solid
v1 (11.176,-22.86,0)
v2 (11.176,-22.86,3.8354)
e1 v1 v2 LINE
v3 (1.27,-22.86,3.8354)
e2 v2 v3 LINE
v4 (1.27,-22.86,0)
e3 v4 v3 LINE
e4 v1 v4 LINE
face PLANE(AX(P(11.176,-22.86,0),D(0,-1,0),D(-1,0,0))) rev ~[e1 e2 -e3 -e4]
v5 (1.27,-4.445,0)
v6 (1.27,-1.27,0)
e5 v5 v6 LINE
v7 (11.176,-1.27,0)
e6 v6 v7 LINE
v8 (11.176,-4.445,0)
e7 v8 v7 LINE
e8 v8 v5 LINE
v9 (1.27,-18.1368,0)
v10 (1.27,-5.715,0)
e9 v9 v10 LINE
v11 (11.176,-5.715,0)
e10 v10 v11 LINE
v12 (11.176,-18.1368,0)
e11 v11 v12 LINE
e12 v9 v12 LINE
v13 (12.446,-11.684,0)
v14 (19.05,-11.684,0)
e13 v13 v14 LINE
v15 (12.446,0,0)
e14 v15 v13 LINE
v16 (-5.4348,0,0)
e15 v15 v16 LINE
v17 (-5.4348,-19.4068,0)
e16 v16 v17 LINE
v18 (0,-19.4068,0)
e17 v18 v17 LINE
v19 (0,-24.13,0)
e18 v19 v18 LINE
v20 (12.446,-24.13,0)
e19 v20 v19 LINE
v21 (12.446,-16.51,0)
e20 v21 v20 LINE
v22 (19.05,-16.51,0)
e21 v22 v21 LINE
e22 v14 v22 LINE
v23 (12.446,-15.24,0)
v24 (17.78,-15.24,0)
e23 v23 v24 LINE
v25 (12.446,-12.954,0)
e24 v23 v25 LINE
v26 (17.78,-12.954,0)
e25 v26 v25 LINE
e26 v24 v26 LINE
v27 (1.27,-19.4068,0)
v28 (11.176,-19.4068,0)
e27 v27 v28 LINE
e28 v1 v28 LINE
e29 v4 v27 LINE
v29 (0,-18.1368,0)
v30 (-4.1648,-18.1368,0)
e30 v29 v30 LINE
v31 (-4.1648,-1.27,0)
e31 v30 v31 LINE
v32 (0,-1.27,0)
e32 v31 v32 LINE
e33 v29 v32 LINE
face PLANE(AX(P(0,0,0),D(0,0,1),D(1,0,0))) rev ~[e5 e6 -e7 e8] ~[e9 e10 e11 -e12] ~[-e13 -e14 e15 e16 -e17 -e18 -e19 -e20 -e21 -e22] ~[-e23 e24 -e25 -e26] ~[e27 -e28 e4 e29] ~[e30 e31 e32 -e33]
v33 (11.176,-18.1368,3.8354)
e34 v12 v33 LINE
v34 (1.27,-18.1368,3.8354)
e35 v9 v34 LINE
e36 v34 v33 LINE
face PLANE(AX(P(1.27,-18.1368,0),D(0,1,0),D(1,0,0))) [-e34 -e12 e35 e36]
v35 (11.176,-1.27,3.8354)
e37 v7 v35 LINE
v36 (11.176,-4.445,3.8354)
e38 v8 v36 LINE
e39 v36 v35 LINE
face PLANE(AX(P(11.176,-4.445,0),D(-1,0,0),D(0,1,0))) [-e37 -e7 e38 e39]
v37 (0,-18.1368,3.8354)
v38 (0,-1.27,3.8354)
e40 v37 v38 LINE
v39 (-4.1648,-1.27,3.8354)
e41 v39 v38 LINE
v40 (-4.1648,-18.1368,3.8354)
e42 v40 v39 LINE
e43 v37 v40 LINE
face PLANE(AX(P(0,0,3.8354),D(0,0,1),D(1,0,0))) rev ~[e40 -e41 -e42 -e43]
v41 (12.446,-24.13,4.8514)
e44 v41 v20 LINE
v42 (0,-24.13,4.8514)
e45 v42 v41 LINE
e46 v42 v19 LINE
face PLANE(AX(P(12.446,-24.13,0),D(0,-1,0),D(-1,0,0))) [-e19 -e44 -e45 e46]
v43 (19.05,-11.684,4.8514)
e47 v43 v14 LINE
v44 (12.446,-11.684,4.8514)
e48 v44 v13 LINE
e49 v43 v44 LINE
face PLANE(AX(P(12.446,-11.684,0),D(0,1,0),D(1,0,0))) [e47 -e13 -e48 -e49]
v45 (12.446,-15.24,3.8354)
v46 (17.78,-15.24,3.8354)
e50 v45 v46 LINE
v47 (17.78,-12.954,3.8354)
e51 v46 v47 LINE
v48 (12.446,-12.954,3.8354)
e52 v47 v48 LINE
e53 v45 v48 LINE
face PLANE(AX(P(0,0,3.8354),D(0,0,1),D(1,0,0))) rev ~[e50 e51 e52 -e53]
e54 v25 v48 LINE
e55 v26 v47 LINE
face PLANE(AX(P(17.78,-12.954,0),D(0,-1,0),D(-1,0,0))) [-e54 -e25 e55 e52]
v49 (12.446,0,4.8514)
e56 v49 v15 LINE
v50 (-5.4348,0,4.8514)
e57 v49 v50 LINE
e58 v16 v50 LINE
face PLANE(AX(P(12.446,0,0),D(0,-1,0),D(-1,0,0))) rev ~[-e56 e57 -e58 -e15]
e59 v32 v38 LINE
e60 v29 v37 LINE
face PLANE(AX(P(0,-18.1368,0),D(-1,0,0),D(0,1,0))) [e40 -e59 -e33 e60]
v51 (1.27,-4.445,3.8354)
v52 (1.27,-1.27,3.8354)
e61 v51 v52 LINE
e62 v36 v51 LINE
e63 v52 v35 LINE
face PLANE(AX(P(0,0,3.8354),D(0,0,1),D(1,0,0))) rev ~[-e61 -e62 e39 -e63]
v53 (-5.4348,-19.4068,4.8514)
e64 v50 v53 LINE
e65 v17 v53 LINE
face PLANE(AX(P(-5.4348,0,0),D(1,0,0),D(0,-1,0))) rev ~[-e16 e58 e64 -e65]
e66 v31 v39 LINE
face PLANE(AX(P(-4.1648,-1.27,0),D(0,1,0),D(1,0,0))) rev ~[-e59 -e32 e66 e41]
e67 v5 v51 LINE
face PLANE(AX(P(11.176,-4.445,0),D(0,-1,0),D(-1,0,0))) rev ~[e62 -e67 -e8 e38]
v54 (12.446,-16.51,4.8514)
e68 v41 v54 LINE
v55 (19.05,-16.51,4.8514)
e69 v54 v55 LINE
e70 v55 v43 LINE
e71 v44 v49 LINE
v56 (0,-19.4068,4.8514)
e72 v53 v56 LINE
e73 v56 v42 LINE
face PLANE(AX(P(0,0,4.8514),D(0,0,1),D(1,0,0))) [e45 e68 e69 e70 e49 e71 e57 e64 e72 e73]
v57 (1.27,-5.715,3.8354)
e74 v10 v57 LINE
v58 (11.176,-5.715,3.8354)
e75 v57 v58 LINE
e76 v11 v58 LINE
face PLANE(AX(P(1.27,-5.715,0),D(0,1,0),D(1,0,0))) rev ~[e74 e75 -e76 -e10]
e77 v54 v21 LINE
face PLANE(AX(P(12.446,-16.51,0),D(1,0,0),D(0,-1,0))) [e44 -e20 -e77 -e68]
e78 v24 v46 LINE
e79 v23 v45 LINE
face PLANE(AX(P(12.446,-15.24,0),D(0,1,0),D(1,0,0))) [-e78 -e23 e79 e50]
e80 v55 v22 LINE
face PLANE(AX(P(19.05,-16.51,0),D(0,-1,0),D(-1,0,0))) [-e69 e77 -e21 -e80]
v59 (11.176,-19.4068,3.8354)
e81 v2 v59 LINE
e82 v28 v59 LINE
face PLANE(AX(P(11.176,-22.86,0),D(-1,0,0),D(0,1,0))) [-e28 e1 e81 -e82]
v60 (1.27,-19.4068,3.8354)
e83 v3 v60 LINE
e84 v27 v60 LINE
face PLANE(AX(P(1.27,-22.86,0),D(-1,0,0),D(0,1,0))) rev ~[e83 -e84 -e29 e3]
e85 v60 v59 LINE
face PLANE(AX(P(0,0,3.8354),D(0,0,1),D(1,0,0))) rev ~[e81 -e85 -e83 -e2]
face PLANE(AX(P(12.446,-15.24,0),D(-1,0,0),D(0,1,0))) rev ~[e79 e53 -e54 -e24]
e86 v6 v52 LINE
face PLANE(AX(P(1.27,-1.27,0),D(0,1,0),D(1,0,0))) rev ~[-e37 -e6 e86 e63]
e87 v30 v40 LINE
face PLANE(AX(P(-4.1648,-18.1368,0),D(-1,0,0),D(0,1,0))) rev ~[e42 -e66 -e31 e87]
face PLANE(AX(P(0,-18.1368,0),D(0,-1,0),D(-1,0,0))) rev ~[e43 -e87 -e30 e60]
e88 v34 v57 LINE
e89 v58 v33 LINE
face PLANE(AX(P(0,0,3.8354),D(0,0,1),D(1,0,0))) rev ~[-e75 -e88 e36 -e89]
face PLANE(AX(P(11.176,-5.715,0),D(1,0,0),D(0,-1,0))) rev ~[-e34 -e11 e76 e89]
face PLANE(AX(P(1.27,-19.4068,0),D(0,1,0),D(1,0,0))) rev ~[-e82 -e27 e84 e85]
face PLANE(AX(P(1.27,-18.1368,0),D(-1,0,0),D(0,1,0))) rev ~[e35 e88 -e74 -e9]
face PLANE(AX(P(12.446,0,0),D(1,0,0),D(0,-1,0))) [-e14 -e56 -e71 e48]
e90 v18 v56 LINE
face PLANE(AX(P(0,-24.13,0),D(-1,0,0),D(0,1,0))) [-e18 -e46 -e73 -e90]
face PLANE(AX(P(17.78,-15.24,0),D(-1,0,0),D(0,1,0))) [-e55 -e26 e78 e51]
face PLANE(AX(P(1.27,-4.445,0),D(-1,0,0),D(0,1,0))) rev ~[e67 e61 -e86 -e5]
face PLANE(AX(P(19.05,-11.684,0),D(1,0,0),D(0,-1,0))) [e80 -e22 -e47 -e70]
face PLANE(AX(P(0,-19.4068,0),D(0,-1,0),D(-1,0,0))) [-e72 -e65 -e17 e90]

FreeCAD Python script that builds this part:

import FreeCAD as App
import Part
import Sketcher
from FreeCAD import Vector
Q = App.Units.Quantity

doc = App.newDocument("Part")
body = doc.addObject("PartDesign::Body", "Body")

sketch1 = doc.addObject("Sketcher::SketchObject", "Sketch")
body.addObject(sketch1)
sketch1.AttachmentSupport = (doc.XY_Plane, [""])
sketch1.MapMode = "FlatFace"
sketch1.addGeometry([
    Part.LineSegment(Vector(12.446, 0, 0), Vector(-5.4348, 0, 0)),
    Part.LineSegment(Vector(-5.4348, 0, 0), Vector(-5.4348, -19.4068, 0)),
    Part.LineSegment(Vector(-5.4348, -19.4068, 0), Vector(0, -19.4068, 0)),
    Part.LineSegment(Vector(0, -19.4068, 0), Vector(0, -24.13, 0)),
    Part.LineSegment(Vector(0, -24.13, 0), Vector(12.446, -24.13, 0)),
    Part.LineSegment(Vector(12.446, -24.13, 0), Vector(12.446, -16.51, 0)),
    Part.LineSegment(Vector(12.446, -16.51, 0), Vector(19.05, -16.51, 0)),
    Part.LineSegment(Vector(19.05, -16.51, 0), Vector(19.05, -11.684, 0)),
    Part.LineSegment(Vector(19.05, -11.684, 0), Vector(12.446, -11.684, 0)),
    Part.LineSegment(Vector(12.446, -11.684, 0), Vector(12.446, 0, 0)),
    Part.LineSegment(Vector(11.176, -19.4068, 0), Vector(11.176, -22.86, 0)),
    Part.LineSegment(Vector(11.176, -22.86, 0), Vector(1.27, -22.86, 0)),
    Part.LineSegment(Vector(1.27, -22.86, 0), Vector(1.27, -19.4068, 0)),
    Part.LineSegment(Vector(1.27, -19.4068, 0), Vector(11.176, -19.4068, 0)),
    Part.LineSegment(Vector(17.78, -15.24, 0), Vector(12.446, -15.24, 0)),
    Part.LineSegment(Vector(12.446, -15.24, 0), Vector(12.446, -12.954, 0)),
    Part.LineSegment(Vector(12.446, -12.954, 0), Vector(17.78, -12.954, 0)),
    Part.LineSegment(Vector(17.78, -12.954, 0), Vector(17.78, -15.24, 0)),
    Part.LineSegment(Vector(-4.1648, -18.1368, 0), Vector(-4.1648, -1.27, 0)),
    Part.LineSegment(Vector(-4.1648, -1.27, 0), Vector(0, -1.27, 0)),
    Part.LineSegment(Vector(0, -1.27, 0), Vector(0, -18.1368, 0)),
    Part.LineSegment(Vector(0, -18.1368, 0), Vector(-4.1648, -18.1368, 0)),
    Part.LineSegment(Vector(1.27, -18.1368, 0), Vector(1.27, -5.715, 0)),
    Part.LineSegment(Vector(1.27, -5.715, 0), Vector(11.176, -5.715, 0)),
    Part.LineSegment(Vector(11.176, -5.715, 0), Vector(11.176, -18.1368, 0)),
    Part.LineSegment(Vector(11.176, -18.1368, 0), Vector(1.27, -18.1368, 0)),
    Part.LineSegment(Vector(11.176, -1.27, 0), Vector(11.176, -4.445, 0)),
    Part.LineSegment(Vector(11.176, -4.445, 0), Vector(1.27, -4.445, 0)),
    Part.LineSegment(Vector(1.27, -4.445, 0), Vector(1.27, -1.27, 0)),
    Part.LineSegment(Vector(1.27, -1.27, 0), Vector(11.176, -1.27, 0)),
], False)
sketch1.addConstraint([
    Sketcher.Constraint("Coincident", 0, 2, 1, 1),
    Sketcher.Constraint("Coincident", 1, 2, 2, 1),
    Sketcher.Constraint("Coincident", 2, 2, 3, 1),
    Sketcher.Constraint("Coincident", 3, 2, 4, 1),
    Sketcher.Constraint("Coincident", 4, 2, 5, 1),
    Sketcher.Constraint("Coincident", 5, 2, 6, 1),
    Sketcher.Constraint("Coincident", 6, 2, 7, 1),
    Sketcher.Constraint("Coincident", 7, 2, 8, 1),
    Sketcher.Constraint("Coincident", 8, 2, 9, 1),
    Sketcher.Constraint("Coincident", 9, 2, 0, 1),
    Sketcher.Constraint("Coincident", 10, 2, 11, 1),
    Sketcher.Constraint("Coincident", 11, 2, 12, 1),
    Sketcher.Constraint("Coincident", 12, 2, 13, 1),
    Sketcher.Constraint("Coincident", 13, 2, 10, 1),
    Sketcher.Constraint("Coincident", 14, 2, 15, 1),
    Sketcher.Constraint("Coincident", 15, 2, 16, 1),
    Sketcher.Constraint("Coincident", 16, 2, 17, 1),
    Sketcher.Constraint("Coincident", 17, 2, 14, 1),
    Sketcher.Constraint("Coincident", 18, 2, 19, 1),
    Sketcher.Constraint("Coincident", 19, 2, 20, 1),
    Sketcher.Constraint("Coincident", 20, 2, 21, 1),
    Sketcher.Constraint("Coincident", 21, 2, 18, 1),
    Sketcher.Constraint("Coincident", 22, 2, 23, 1),
    Sketcher.Constraint("Coincident", 23, 2, 24, 1),
    Sketcher.Constraint("Coincident", 24, 2, 25, 1),
    Sketcher.Constraint("Coincident", 25, 2, 22, 1),
    Sketcher.Constraint("Coincident", 26, 2, 27, 1),
    Sketcher.Constraint("Coincident", 27, 2, 28, 1),
    Sketcher.Constraint("Coincident", 28, 2, 29, 1),
    Sketcher.Constraint("Coincident", 29, 2, 26, 1),
    Sketcher.Constraint("Horizontal", 0),
    Sketcher.Constraint("Vertical", 1),
    Sketcher.Constraint("Horizontal", 2),
    Sketcher.Constraint("Vertical", 3),
    Sketcher.Constraint("Horizontal", 4),
    Sketcher.Constraint("Vertical", 5),
    Sketcher.Constraint("Horizontal", 6),
    Sketcher.Constraint("Vertical", 7),
    Sketcher.Constraint("Horizontal", 8),
    Sketcher.Constraint("Vertical", 9),
    Sketcher.Constraint("Vertical", 10),
    Sketcher.Constraint("Horizontal", 11),
    Sketcher.Constraint("Vertical", 12),
    Sketcher.Constraint("Horizontal", 13),
    Sketcher.Constraint("Horizontal", 14),
    Sketcher.Constraint("Vertical", 15),
    Sketcher.Constraint("Horizontal", 16),
    Sketcher.Constraint("Vertical", 17),
    Sketcher.Constraint("Vertical", 18),
    Sketcher.Constraint("Horizontal", 19),
    Sketcher.Constraint("Vertical", 20),
    Sketcher.Constraint("Horizontal", 21),
    Sketcher.Constraint("Vertical", 22),
    Sketcher.Constraint("Horizontal", 23),
    Sketcher.Constraint("Vertical", 24),
    Sketcher.Constraint("Horizontal", 25),
    Sketcher.Constraint("Vertical", 26),
    Sketcher.Constraint("Horizontal", 27),
    Sketcher.Constraint("Vertical", 28),
    Sketcher.Constraint("Horizontal", 29),
    Sketcher.Constraint("PointOnObject", 0, 2, -1),
    Sketcher.Constraint("PointOnObject", 2, 2, -2),
    Sketcher.Constraint("PointOnObject", 19, 2, -2),
    Sketcher.Constraint("Horizontal", 2, 2, 12, 2),
    Sketcher.Constraint("Horizontal", 21, 2, 24, 2),
    Sketcher.Constraint("Horizontal", 19, 2, 28, 2),
    Sketcher.Constraint("Vertical", 5, 2, 8, 2),
    Sketcher.Constraint("Vertical", 9, 2, 14, 2),
    Sketcher.Constraint("Vertical", 12, 2, 22, 2),
    Sketcher.Constraint("Vertical", 13, 2, 23, 2),
    Sketcher.Constraint("Vertical", 24, 2, 26, 2),
    Sketcher.Constraint("Vertical", 25, 2, 27, 2),
    Sketcher.Constraint("DistanceY", 5, 1, 5, 2, Q("0.3 in")),
    Sketcher.Constraint("DistanceX", 4, 1, 4, 2, Q("0.49 in")),
    Sketcher.Constraint("DistanceX", 6, 1, 6, 2, Q("0.26 in")),
    Sketcher.Constraint("DistanceX", 11, 2, 11, 1, Q("0.39 in")),
    Sketcher.Constraint("DistanceX", 14, 2, 14, 1, Q("0.21 in")),
    Sketcher.Constraint("DistanceY", 7, 1, 7, 2, Q("0.19 in")),
    Sketcher.Constraint("DistanceY", 9, 1, 9, 2, Q("0.46 in")),
    Sketcher.Constraint("DistanceY", 15, 1, 15, 2, Q("0.09 in")),
    Sketcher.Constraint("DistanceY", 10, 2, -1, 1, Q("0.9 in")),
    Sketcher.Constraint("DistanceY", 14, 2, -1, 1, Q("0.6 in")),
    Sketcher.Constraint("DistanceY", 26, 2, 26, 1, Q("0.125 in")),
    Sketcher.Constraint("DistanceX", -1, 1, 10, 2, Q("0.44 in")),
    Sketcher.Constraint("DistanceY", 18, 2, -1, 1, Q("0.05 in")),
    Sketcher.Constraint("DistanceX", 0, 2, 18, 2, Q("0.05 in")),
    Sketcher.Constraint("DistanceY", 2, 2, 20, 2, Q("0.05 in")),
    Sketcher.Constraint("DistanceY", 23, 2, 26, 2, Q("0.05 in")),
    Sketcher.Constraint("DistanceX", 0, 2, 0, 1, Q("17.8808 mm")),
    Sketcher.Constraint("DistanceY", 1, 2, 1, 1, Q("19.4068 mm")),
])
pad1 = doc.addObject("PartDesign::Pad", "Pad")
body.addObject(pad1)
pad1.Profile = sketch1
pad1.Length = Q("0.151 in")

sketch2 = doc.addObject("Sketcher::SketchObject", "Sketch001")
body.addObject(sketch2)
sketch2.AttachmentSupport = (doc.XY_Plane, [""])
sketch2.MapMode = "FlatFace"
sketch2.AttachmentOffset = App.Placement(Vector(0, 0, 0.151 * 25.4), App.Rotation())
sketch2.addGeometry([
    Part.LineSegment(Vector(12.446, -16.51, 0), Vector(19.05, -16.51, 0)),
    Part.LineSegment(Vector(19.05, -16.51, 0), Vector(19.05, -11.684, 0)),
    Part.LineSegment(Vector(19.05, -11.684, 0), Vector(12.446, -11.684, 0)),
    Part.LineSegment(Vector(12.446, -11.684, 0), Vector(12.446, 0, 0)),
    Part.LineSegment(Vector(12.446, 0, 0), Vector(-5.4348, 0, 0)),
    Part.LineSegment(Vector(-5.4348, 0, 0), Vector(-5.4348, -19.4068, 0)),
    Part.LineSegment(Vector(-5.4348, -19.4068, 0), Vector(0, -19.4068, 0)),
    Part.LineSegment(Vector(0, -19.4068, 0), Vector(0, -24.13, 0)),
    Part.LineSegment(Vector(0, -24.13, 0), Vector(12.446, -24.13, 0)),
    Part.LineSegment(Vector(12.446, -24.13, 0), Vector(12.446, -16.51, 0)),
], False)
sketch2.addConstraint([
    Sketcher.Constraint("Coincident", 0, 2, 1, 1),
    Sketcher.Constraint("Coincident", 1, 2, 2, 1),
    Sketcher.Constraint("Coincident", 2, 2, 3, 1),
    Sketcher.Constraint("Coincident", 3, 2, 4, 1),
    Sketcher.Constraint("Coincident", 4, 2, 5, 1),
    Sketcher.Constraint("Coincident", 5, 2, 6, 1),
    Sketcher.Constraint("Coincident", 6, 2, 7, 1),
    Sketcher.Constraint("Coincident", 7, 2, 8, 1),
    Sketcher.Constraint("Coincident", 8, 2, 9, 1),
    Sketcher.Constraint("Coincident", 9, 2, 0, 1),
    Sketcher.Constraint("Horizontal", 0),
    Sketcher.Constraint("Vertical", 1),
    Sketcher.Constraint("Horizontal", 2),
    Sketcher.Constraint("Vertical", 3),
    Sketcher.Constraint("Horizontal", 4),
    Sketcher.Constraint("Vertical", 5),
    Sketcher.Constraint("Horizontal", 6),
    Sketcher.Constraint("Vertical", 7),
    Sketcher.Constraint("Horizontal", 8),
    Sketcher.Constraint("Vertical", 9),
    Sketcher.Constraint("PointOnObject", 3, 2, -1),
    Sketcher.Constraint("PointOnObject", 6, 2, -2),
    Sketcher.Constraint("Vertical", 3, 2, 8, 2),
    Sketcher.Constraint("DistanceY", 9, 1, 9, 2, Q("0.3 in")),
    Sketcher.Constraint("DistanceX", 0, 1, 0, 2, Q("0.26 in")),
    Sketcher.Constraint("DistanceX", 8, 1, 8, 2, Q("0.49 in")),
    Sketcher.Constraint("DistanceY", 1, 1, 1, 2, Q("0.19 in")),
    Sketcher.Constraint("DistanceY", 3, 1, 3, 2, Q("0.46 in")),
    Sketcher.Constraint("DistanceX", 4, 2, 4, 1, Q("17.8808 mm")),
    Sketcher.Constraint("DistanceY", 5, 2, 5, 1, Q("19.4068 mm")),
])
pad2 = doc.addObject("PartDesign::Pad", "Pad001")
body.addObject(pad2)
pad2.Profile = sketch2
pad2.Length = Q("0.04 in")

doc.recompute()
